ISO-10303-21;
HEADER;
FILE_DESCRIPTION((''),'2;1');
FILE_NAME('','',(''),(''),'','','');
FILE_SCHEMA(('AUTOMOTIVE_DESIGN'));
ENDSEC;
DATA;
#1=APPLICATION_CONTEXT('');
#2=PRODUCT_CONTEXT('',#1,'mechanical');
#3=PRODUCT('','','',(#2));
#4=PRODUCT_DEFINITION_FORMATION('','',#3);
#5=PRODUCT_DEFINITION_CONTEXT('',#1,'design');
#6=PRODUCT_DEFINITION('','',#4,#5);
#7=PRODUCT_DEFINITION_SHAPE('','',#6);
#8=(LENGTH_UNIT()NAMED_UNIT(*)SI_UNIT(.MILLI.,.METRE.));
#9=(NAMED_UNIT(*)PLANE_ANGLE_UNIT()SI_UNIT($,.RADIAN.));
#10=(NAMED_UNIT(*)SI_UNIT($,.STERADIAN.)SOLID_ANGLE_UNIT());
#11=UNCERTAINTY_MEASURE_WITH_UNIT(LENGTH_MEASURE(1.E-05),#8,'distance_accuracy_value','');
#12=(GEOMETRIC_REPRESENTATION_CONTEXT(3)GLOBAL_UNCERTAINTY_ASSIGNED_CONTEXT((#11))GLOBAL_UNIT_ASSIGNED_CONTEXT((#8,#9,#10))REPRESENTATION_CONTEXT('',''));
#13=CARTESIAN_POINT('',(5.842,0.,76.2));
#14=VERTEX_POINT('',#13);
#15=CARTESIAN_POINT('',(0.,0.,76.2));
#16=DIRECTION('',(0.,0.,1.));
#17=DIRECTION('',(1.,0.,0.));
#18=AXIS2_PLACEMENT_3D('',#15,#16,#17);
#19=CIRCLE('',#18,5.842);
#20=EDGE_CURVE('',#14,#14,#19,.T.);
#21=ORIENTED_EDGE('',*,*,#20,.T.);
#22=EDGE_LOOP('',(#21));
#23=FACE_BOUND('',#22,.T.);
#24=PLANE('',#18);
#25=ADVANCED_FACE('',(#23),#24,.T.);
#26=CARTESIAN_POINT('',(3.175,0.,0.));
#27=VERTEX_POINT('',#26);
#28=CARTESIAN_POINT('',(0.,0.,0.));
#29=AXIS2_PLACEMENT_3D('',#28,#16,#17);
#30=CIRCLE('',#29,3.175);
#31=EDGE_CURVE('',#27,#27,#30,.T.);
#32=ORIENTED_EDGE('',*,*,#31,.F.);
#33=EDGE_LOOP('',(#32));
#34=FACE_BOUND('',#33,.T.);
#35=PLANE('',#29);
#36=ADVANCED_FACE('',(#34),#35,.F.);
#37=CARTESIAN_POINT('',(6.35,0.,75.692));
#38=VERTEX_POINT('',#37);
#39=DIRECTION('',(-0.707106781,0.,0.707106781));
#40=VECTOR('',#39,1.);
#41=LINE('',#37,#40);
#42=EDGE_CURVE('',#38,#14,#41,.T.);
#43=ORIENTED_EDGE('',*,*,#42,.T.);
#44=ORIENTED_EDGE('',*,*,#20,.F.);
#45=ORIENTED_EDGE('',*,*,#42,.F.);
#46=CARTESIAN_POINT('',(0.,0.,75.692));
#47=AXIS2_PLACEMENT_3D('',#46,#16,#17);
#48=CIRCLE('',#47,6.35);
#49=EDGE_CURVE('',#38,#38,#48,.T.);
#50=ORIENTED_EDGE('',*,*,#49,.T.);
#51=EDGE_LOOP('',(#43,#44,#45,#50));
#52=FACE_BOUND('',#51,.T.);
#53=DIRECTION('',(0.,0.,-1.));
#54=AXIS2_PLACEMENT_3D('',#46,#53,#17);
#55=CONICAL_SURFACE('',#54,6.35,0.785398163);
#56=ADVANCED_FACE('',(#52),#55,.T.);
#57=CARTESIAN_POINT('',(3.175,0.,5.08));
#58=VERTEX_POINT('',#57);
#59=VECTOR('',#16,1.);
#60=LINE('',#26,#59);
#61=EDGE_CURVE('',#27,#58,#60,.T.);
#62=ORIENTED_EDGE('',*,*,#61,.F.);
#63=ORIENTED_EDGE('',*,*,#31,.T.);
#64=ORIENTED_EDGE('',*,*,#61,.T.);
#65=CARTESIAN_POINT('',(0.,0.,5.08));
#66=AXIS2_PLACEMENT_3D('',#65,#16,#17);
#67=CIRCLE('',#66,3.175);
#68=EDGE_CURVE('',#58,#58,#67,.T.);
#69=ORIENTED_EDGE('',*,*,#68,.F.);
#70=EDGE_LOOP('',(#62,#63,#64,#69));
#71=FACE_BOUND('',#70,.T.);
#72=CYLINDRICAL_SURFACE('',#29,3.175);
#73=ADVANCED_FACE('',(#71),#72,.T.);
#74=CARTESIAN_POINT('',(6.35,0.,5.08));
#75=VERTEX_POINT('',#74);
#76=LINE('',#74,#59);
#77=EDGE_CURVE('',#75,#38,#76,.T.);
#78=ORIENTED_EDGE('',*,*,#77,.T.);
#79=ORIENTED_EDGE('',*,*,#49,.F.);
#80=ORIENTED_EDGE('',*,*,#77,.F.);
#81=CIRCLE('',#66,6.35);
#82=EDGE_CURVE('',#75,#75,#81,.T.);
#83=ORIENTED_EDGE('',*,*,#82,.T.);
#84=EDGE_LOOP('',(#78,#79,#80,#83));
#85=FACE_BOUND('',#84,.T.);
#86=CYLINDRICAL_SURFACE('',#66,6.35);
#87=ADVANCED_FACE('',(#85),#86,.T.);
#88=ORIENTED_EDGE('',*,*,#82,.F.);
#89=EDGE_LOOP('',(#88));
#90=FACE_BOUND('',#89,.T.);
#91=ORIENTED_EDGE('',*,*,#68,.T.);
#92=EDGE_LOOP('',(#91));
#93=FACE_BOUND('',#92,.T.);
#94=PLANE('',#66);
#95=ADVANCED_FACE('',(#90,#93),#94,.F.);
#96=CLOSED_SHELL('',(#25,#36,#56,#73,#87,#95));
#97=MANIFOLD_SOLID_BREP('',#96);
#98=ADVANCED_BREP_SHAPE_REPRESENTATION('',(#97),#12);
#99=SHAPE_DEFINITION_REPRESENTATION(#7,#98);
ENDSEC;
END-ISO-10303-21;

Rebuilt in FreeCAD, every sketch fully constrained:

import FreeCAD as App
import Part
import Sketcher

V = App.Vector
Q = App.Units.Quantity


def edges_at(feature, points):
    """Names of the edges that pass closest to the given points."""
    edges = feature.Shape.Edges
    near = lambda p: min(range(len(edges)), key=lambda i: edges[i].distToShape(Part.Vertex(*p))[0])
    return sorted({f"Edge{near(p) + 1}" for p in points})


def add_polygon(sketch, points):
    """Adds a closed chain of lines whose ends are joined by coincident constraints."""
    first, n = sketch.GeometryCount, len(points)
    for a, b in zip(points, points[1:] + points[:1]):
        sketch.addGeometry(Part.LineSegment(App.Vector(*a, 0), App.Vector(*b, 0)), False)
    for i in range(n):
        sketch.addConstraint(Sketcher.Constraint("Coincident", first + i, 2, first + (i + 1) % n, 1))

doc = App.newDocument("Part")
body = doc.addObject("PartDesign::Body", "Body")

sketch1 = body.newObject("Sketcher::SketchObject", "Sketch")
sketch1.AttachmentSupport = (doc.getObject("XZ_Plane"), [""])
sketch1.MapMode = "FlatFace"
add_polygon(sketch1, [(0, 76.2), (0, 0), (3.175, 0), (3.175, 5.08), (6.35, 5.08), (6.35, 76.2)])
sketch1.addConstraint([
    Sketcher.Constraint("Vertical", 0),
    Sketcher.Constraint("Horizontal", 1),
    Sketcher.Constraint("Vertical", 2),
    Sketcher.Constraint("Horizontal", 3),
    Sketcher.Constraint("Vertical", 4),
    Sketcher.Constraint("Horizontal", 5),
    Sketcher.Constraint("Coincident", 0, 2, -1, 1),
    Sketcher.Constraint("Equal", 1, 3),
    Sketcher.Constraint("DistanceY", 0, 2, 0, 1, Q("3 in")),
    Sketcher.Constraint("DistanceY", 2, 1, 2, 2, Q("0.2 in")),
    Sketcher.Constraint("DistanceX", 5, 2, 5, 1, Q("0.25 in")),
])
revolution = body.newObject("PartDesign::Revolution", "Revolution")
revolution.Profile = sketch1
revolution.ReferenceAxis = (sketch1, ["V_Axis"])
revolution.Angle = 360
doc.recompute()

chamfer = body.newObject("PartDesign::Chamfer", "Chamfer")
chamfer.Base = (revolution, edges_at(revolution, [(-6.35, 0, 76.2)]))
chamfer.Size = Q("0.02 in")

doc.recompute()
